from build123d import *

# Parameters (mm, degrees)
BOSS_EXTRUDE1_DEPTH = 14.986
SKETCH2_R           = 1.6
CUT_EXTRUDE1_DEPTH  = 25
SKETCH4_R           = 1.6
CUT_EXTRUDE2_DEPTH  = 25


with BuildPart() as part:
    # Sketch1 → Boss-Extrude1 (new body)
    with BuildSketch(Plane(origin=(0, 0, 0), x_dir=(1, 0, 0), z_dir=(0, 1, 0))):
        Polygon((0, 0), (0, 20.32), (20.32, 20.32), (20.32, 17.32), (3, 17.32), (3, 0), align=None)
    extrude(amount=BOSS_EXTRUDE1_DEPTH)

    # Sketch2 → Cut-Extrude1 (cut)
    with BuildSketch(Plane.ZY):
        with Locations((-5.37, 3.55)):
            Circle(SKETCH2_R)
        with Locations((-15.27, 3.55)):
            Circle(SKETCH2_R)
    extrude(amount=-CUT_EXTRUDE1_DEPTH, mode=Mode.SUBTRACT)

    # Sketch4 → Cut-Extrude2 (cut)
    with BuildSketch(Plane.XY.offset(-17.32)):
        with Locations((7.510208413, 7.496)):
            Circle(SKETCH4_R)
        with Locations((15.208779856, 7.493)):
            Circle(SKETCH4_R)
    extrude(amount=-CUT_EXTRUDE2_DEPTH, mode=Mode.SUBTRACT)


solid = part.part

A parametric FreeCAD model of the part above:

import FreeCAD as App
import Part
import Sketcher


def add_polygon(sketch, points):
    """Adds a closed chain of lines whose ends are joined by coincident constraints."""
    first, n = sketch.GeometryCount, len(points)
    for a, b in zip(points, points[1:] + points[:1]):
        sketch.addGeometry(Part.LineSegment(App.Vector(*a, 0), App.Vector(*b, 0)), False)
    for i in range(n):
        sketch.addConstraint(Sketcher.Constraint("Coincident", first + i, 2, first + (i + 1) % n, 1))

doc = App.newDocument("Part")
params = doc.addObject("Spreadsheet::Sheet", "Params")
for row, (alias, value) in enumerate([
    ("sketch1_width", "3 mm"),
    ("sketch1_width2", "17.32 mm"),
    ("pad1_length", "14.986 mm"),
    ("sketch2_diameter", "3.2 mm"),
    ("pocket1_length", "25 mm"),
    ("sketch3_diameter", "3.2 mm"),
    ("pocket2_length", "25 mm"),
], start=1):
    params.set(f"A{row}", alias)
    params.set(f"B{row}", "=" + value)
    params.setAlias(f"B{row}", alias)

body = doc.addObject("PartDesign::Body", "Body")

# Sketch on XZ plane
sketch1 = body.newObject("Sketcher::SketchObject", "Sketch")
sketch1.AttachmentSupport = (doc.getObject("XZ_Plane"), [""])
sketch1.MapMode = "FlatFace"
add_polygon(sketch1, [(0, -20.3), (0, 0), (3, 0), (3, -17.3), (20.3, -17.3), (20.3, -20.3)])  # lines 0-5
sketch1.addConstraint(Sketcher.Constraint("Vertical", 0))
sketch1.addConstraint(Sketcher.Constraint("Horizontal", 1))
sketch1.addConstraint(Sketcher.Constraint("Vertical", 2))
sketch1.addConstraint(Sketcher.Constraint("Horizontal", 3))
sketch1.addConstraint(Sketcher.Constraint("Vertical", 4))
sketch1.addConstraint(Sketcher.Constraint("Horizontal", 5))
sketch1.addConstraint(Sketcher.Constraint("Coincident", 0, 2, -1, 1))
sketch1.addConstraint(Sketcher.Constraint("Equal", 5, 0))
sketch1.addConstraint(Sketcher.Constraint("Equal", 3, 2))
sketch1.addConstraint(Sketcher.Constraint("DistanceX", 1, 1, 1, 2, 3.0))
sketch1.addConstraint(Sketcher.Constraint("DistanceX", 3, 1, 3, 2, 17.32))
sketch1.setExpression("Constraints[15]", "Params.sketch1_width")
sketch1.setExpression("Constraints[16]", "Params.sketch1_width2")
pad1 = body.newObject("PartDesign::Pad", "Pad")
pad1.Profile = sketch1
pad1.setExpression("Length", "Params.pad1_length")
pad1.Reversed = True

# Sketch on YZ plane
sketch2 = body.newObject("Sketcher::SketchObject", "Sketch001")
sketch2.AttachmentSupport = (doc.getObject("YZ_Plane"), [""])
sketch2.MapMode = "FlatFace"
sketch2.addGeometry(Part.Circle(App.Vector(3.5, -5.4, 0), App.Vector(0, 0, 1), 1.6), False)
sketch2.addGeometry(Part.Circle(App.Vector(3.5, -15.3, 0), App.Vector(0, 0, 1), 1.6), False)
sketch2.addConstraint(Sketcher.Constraint("Equal", 0, 1))
sketch2.addConstraint(Sketcher.Constraint("Vertical", 0, 3, 1, 3))
sketch2.addConstraint(Sketcher.Constraint("Diameter", 0, 3.2))
sketch2.addConstraint(Sketcher.Constraint("DistanceY", 1, 3, 0, 3, 9.9))
sketch2.addConstraint(Sketcher.Constraint("DistanceX", -1, 1, 0, 3, 3.55))
sketch2.addConstraint(Sketcher.Constraint("DistanceY", 0, 3, -1, 1, 5.37))
sketch2.setExpression("Constraints[2]", "Params.sketch2_diameter")
pocket1 = body.newObject("PartDesign::Pocket", "Pocket")
pocket1.Profile = sketch2
pocket1.setExpression("Length", "Params.pocket1_length")
pocket1.Reversed = True

# Sketch on XY plane
sketch3 = body.newObject("Sketcher::SketchObject", "Sketch002")
sketch3.AttachmentSupport = (doc.getObject("XY_Plane"), [""])
sketch3.MapMode = "FlatFace"
sketch3.AttachmentOffset = App.Placement(App.Vector(0, 0, -17.32), App.Rotation())
sketch3.addGeometry(Part.Circle(App.Vector(7.5, 7.5, 0), App.Vector(0, 0, 1), 1.6), False)
sketch3.addGeometry(Part.Circle(App.Vector(15.2, 7.5, 0), App.Vector(0, 0, 1), 1.6), False)
sketch3.addConstraint(Sketcher.Constraint("Equal", 0, 1))
sketch3.addConstraint(Sketcher.Constraint("Diameter", 0, 3.2))
sketch3.addConstraint(Sketcher.Constraint("DistanceY", -1, 1, 0, 3, 7.496))
sketch3.addConstraint(Sketcher.Constraint("DistanceY", -1, 1, 1, 3, 7.493))
sketch3.addConstraint(Sketcher.Constraint("DistanceX", -1, 1, 0, 3, 7.510208))
sketch3.addConstraint(Sketcher.Constraint("DistanceX", -1, 1, 1, 3, 15.20878))
sketch3.setExpression("Constraints[1]", "Params.sketch3_diameter")
pocket2 = body.newObject("PartDesign::Pocket", "Pocket001")
pocket2.Profile = sketch3
pocket2.setExpression("Length", "Params.pocket2_length")

doc.recompute()
